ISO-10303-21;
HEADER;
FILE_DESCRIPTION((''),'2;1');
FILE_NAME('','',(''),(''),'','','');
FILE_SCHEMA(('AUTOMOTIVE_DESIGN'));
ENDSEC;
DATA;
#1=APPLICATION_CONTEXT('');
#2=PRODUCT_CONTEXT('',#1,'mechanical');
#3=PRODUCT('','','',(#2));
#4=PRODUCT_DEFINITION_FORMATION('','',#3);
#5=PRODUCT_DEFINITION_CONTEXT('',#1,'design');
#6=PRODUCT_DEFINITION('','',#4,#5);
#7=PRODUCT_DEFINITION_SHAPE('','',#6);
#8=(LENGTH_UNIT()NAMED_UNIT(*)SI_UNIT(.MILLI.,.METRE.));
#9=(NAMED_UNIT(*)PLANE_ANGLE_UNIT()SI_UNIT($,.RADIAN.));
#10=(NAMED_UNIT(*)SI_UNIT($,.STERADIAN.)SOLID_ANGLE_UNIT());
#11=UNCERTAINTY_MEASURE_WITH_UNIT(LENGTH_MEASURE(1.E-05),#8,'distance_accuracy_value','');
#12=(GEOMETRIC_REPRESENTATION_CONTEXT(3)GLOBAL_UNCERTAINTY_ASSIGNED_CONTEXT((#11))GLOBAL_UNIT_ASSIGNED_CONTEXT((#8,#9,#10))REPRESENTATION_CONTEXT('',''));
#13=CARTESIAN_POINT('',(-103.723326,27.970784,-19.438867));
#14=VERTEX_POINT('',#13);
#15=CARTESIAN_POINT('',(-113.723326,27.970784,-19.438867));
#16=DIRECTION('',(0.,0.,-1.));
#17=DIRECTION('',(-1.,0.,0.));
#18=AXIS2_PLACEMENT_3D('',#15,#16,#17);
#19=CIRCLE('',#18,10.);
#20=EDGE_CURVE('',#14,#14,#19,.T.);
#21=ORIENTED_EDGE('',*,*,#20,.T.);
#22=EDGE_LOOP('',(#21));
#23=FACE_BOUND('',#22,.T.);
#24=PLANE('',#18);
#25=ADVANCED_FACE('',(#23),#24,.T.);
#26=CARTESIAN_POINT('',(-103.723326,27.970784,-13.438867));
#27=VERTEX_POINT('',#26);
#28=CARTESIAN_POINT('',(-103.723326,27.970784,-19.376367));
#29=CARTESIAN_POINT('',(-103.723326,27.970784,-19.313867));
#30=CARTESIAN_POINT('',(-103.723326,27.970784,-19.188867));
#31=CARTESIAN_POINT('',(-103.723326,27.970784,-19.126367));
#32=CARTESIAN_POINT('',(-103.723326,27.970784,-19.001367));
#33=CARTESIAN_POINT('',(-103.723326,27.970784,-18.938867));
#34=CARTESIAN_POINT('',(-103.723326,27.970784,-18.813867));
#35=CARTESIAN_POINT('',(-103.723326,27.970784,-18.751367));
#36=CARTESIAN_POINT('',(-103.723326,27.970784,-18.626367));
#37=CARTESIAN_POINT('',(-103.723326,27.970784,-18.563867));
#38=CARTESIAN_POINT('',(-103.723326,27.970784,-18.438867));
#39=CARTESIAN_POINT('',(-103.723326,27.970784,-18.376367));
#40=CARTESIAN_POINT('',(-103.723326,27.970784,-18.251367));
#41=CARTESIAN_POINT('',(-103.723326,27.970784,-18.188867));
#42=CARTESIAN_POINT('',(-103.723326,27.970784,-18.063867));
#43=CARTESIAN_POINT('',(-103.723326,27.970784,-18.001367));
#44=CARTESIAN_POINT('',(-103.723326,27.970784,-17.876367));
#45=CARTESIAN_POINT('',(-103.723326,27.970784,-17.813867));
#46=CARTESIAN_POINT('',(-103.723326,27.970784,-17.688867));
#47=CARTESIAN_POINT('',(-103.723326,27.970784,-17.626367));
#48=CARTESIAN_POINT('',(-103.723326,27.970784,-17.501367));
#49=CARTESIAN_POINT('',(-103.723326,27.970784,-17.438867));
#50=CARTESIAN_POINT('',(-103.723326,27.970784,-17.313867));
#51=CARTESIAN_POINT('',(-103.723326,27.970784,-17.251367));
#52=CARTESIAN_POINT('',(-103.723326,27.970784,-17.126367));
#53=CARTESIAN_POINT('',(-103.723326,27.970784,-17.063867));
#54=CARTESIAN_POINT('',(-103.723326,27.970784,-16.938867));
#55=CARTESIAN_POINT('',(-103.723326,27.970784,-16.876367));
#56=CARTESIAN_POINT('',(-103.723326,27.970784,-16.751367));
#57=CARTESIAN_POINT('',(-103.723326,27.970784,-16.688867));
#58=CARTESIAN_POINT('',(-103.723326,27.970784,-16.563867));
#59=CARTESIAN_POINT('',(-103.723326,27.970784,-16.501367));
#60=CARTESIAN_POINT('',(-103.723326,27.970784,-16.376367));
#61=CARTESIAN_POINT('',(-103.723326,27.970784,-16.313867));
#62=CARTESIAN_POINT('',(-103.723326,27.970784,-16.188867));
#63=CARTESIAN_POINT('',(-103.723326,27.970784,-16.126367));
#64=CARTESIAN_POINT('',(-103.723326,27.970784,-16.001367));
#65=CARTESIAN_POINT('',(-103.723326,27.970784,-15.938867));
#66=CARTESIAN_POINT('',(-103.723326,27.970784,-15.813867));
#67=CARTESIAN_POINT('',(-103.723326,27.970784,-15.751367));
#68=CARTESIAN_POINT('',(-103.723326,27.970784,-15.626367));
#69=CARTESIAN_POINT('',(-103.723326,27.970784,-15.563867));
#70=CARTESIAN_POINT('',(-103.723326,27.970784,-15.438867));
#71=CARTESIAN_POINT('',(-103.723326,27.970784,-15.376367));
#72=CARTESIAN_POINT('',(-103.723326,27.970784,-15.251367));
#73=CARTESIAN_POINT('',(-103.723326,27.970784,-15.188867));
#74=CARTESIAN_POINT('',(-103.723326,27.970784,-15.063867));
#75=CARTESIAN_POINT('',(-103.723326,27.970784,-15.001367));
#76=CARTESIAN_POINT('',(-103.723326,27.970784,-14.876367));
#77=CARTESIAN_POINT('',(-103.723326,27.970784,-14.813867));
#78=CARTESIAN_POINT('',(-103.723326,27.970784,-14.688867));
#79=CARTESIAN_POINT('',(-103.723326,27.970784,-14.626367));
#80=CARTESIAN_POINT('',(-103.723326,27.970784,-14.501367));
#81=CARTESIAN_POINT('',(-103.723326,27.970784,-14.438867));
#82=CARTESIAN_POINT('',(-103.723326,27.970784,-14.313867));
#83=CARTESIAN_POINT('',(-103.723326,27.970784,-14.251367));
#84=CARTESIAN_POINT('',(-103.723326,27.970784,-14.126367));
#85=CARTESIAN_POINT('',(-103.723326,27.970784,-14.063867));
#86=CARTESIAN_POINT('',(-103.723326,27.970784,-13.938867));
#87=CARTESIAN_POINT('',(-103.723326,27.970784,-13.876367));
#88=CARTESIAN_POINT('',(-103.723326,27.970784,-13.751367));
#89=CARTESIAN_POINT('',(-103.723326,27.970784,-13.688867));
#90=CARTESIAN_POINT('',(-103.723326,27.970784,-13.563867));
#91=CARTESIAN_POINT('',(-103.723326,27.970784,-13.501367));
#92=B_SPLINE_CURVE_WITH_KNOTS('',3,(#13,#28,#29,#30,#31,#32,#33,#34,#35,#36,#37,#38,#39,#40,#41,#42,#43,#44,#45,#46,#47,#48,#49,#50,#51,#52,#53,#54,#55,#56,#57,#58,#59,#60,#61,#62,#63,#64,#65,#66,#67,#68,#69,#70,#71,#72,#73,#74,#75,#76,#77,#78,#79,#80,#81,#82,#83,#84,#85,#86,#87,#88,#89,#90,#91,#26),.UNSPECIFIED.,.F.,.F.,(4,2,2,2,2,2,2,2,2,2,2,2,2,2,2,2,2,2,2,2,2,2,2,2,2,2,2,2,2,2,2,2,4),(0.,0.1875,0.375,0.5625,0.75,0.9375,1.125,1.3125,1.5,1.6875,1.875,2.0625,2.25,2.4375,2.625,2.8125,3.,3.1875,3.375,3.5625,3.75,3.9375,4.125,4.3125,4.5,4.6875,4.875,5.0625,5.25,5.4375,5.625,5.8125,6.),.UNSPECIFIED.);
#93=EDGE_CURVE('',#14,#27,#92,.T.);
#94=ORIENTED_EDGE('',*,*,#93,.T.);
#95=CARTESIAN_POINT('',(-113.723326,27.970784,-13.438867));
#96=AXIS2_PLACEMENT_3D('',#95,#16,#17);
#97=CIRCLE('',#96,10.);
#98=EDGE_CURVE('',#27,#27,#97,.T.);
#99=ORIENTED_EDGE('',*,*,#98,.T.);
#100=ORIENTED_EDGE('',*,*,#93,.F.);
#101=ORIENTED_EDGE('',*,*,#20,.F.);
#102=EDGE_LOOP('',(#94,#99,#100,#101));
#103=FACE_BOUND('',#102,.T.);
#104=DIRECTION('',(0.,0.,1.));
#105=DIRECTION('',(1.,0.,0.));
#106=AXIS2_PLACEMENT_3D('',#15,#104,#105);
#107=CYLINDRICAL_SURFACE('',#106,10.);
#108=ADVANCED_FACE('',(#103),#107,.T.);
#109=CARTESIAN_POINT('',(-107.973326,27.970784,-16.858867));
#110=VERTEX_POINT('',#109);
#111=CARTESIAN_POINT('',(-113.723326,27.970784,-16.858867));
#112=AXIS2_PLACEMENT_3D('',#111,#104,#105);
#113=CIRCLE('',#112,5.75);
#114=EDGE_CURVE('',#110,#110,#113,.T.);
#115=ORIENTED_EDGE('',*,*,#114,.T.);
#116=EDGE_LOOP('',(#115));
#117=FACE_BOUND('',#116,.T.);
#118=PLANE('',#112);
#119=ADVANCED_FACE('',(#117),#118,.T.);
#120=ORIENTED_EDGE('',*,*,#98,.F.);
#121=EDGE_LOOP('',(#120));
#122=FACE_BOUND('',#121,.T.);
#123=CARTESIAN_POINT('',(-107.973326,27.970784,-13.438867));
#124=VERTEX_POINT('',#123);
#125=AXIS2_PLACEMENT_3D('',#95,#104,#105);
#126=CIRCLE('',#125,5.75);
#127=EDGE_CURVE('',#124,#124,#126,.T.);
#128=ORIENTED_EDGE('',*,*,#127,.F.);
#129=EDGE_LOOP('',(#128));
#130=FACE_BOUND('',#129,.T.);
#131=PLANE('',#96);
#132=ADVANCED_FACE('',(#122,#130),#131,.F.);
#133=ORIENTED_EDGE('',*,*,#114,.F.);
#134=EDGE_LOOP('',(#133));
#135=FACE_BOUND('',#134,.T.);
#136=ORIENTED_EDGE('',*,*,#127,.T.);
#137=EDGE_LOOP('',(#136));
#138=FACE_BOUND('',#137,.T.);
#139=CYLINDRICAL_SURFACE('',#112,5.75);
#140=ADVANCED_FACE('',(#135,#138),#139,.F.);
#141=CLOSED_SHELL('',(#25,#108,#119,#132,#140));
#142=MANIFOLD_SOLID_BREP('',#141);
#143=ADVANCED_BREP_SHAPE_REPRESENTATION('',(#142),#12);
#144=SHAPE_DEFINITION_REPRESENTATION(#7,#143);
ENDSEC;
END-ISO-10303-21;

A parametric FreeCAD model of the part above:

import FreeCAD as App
import Part
import Sketcher

doc = App.newDocument("Part")
body = doc.addObject("PartDesign::Body", "Body")

# Sketch on XY plane
sketch1 = body.newObject("Sketcher::SketchObject", "Sketch")
sketch1.AttachmentSupport = (doc.getObject("XY_Plane"), [""])
sketch1.MapMode = "FlatFace"
sketch1.AttachmentOffset = App.Placement(App.Vector(0, 0, -13.438867), App.Rotation())
sketch1.addGeometry(Part.Circle(App.Vector(-114, 28, 0), App.Vector(0, 0, 1), 10), False)
sketch1.addConstraint(Sketcher.Constraint("Diameter", 0, 20.0))
sketch1.addConstraint(Sketcher.Constraint("DistanceX", 0, 3, -1, 1, 113.723326))
sketch1.addConstraint(Sketcher.Constraint("DistanceY", -1, 1, 0, 3, 27.970784))
pad1 = body.newObject("PartDesign::Pad", "Pad")
pad1.Profile = sketch1
pad1.Length = 6
pad1.Reversed = True

# Sketch on XY plane
sketch2 = body.newObject("Sketcher::SketchObject", "Sketch001")
sketch2.AttachmentSupport = (doc.getObject("XY_Plane"), [""])
sketch2.MapMode = "FlatFace"
sketch2.AttachmentOffset = App.Placement(App.Vector(0, 0, -13.438867), App.Rotation())
sketch2.addGeometry(Part.Circle(App.Vector(-114, 28, 0), App.Vector(0, 0, 1), 6), False)
sketch2.addConstraint(Sketcher.Constraint("Diameter", 0, 11.5))
sketch2.addConstraint(Sketcher.Constraint("DistanceX", 0, 3, -1, 1, 113.723326))
sketch2.addConstraint(Sketcher.Constraint("DistanceY", -1, 1, 0, 3, 27.970784))
pocket1 = body.newObject("PartDesign::Pocket", "Pocket")
pocket1.Profile = sketch2
pocket1.Length = 3.42

doc.recompute()
